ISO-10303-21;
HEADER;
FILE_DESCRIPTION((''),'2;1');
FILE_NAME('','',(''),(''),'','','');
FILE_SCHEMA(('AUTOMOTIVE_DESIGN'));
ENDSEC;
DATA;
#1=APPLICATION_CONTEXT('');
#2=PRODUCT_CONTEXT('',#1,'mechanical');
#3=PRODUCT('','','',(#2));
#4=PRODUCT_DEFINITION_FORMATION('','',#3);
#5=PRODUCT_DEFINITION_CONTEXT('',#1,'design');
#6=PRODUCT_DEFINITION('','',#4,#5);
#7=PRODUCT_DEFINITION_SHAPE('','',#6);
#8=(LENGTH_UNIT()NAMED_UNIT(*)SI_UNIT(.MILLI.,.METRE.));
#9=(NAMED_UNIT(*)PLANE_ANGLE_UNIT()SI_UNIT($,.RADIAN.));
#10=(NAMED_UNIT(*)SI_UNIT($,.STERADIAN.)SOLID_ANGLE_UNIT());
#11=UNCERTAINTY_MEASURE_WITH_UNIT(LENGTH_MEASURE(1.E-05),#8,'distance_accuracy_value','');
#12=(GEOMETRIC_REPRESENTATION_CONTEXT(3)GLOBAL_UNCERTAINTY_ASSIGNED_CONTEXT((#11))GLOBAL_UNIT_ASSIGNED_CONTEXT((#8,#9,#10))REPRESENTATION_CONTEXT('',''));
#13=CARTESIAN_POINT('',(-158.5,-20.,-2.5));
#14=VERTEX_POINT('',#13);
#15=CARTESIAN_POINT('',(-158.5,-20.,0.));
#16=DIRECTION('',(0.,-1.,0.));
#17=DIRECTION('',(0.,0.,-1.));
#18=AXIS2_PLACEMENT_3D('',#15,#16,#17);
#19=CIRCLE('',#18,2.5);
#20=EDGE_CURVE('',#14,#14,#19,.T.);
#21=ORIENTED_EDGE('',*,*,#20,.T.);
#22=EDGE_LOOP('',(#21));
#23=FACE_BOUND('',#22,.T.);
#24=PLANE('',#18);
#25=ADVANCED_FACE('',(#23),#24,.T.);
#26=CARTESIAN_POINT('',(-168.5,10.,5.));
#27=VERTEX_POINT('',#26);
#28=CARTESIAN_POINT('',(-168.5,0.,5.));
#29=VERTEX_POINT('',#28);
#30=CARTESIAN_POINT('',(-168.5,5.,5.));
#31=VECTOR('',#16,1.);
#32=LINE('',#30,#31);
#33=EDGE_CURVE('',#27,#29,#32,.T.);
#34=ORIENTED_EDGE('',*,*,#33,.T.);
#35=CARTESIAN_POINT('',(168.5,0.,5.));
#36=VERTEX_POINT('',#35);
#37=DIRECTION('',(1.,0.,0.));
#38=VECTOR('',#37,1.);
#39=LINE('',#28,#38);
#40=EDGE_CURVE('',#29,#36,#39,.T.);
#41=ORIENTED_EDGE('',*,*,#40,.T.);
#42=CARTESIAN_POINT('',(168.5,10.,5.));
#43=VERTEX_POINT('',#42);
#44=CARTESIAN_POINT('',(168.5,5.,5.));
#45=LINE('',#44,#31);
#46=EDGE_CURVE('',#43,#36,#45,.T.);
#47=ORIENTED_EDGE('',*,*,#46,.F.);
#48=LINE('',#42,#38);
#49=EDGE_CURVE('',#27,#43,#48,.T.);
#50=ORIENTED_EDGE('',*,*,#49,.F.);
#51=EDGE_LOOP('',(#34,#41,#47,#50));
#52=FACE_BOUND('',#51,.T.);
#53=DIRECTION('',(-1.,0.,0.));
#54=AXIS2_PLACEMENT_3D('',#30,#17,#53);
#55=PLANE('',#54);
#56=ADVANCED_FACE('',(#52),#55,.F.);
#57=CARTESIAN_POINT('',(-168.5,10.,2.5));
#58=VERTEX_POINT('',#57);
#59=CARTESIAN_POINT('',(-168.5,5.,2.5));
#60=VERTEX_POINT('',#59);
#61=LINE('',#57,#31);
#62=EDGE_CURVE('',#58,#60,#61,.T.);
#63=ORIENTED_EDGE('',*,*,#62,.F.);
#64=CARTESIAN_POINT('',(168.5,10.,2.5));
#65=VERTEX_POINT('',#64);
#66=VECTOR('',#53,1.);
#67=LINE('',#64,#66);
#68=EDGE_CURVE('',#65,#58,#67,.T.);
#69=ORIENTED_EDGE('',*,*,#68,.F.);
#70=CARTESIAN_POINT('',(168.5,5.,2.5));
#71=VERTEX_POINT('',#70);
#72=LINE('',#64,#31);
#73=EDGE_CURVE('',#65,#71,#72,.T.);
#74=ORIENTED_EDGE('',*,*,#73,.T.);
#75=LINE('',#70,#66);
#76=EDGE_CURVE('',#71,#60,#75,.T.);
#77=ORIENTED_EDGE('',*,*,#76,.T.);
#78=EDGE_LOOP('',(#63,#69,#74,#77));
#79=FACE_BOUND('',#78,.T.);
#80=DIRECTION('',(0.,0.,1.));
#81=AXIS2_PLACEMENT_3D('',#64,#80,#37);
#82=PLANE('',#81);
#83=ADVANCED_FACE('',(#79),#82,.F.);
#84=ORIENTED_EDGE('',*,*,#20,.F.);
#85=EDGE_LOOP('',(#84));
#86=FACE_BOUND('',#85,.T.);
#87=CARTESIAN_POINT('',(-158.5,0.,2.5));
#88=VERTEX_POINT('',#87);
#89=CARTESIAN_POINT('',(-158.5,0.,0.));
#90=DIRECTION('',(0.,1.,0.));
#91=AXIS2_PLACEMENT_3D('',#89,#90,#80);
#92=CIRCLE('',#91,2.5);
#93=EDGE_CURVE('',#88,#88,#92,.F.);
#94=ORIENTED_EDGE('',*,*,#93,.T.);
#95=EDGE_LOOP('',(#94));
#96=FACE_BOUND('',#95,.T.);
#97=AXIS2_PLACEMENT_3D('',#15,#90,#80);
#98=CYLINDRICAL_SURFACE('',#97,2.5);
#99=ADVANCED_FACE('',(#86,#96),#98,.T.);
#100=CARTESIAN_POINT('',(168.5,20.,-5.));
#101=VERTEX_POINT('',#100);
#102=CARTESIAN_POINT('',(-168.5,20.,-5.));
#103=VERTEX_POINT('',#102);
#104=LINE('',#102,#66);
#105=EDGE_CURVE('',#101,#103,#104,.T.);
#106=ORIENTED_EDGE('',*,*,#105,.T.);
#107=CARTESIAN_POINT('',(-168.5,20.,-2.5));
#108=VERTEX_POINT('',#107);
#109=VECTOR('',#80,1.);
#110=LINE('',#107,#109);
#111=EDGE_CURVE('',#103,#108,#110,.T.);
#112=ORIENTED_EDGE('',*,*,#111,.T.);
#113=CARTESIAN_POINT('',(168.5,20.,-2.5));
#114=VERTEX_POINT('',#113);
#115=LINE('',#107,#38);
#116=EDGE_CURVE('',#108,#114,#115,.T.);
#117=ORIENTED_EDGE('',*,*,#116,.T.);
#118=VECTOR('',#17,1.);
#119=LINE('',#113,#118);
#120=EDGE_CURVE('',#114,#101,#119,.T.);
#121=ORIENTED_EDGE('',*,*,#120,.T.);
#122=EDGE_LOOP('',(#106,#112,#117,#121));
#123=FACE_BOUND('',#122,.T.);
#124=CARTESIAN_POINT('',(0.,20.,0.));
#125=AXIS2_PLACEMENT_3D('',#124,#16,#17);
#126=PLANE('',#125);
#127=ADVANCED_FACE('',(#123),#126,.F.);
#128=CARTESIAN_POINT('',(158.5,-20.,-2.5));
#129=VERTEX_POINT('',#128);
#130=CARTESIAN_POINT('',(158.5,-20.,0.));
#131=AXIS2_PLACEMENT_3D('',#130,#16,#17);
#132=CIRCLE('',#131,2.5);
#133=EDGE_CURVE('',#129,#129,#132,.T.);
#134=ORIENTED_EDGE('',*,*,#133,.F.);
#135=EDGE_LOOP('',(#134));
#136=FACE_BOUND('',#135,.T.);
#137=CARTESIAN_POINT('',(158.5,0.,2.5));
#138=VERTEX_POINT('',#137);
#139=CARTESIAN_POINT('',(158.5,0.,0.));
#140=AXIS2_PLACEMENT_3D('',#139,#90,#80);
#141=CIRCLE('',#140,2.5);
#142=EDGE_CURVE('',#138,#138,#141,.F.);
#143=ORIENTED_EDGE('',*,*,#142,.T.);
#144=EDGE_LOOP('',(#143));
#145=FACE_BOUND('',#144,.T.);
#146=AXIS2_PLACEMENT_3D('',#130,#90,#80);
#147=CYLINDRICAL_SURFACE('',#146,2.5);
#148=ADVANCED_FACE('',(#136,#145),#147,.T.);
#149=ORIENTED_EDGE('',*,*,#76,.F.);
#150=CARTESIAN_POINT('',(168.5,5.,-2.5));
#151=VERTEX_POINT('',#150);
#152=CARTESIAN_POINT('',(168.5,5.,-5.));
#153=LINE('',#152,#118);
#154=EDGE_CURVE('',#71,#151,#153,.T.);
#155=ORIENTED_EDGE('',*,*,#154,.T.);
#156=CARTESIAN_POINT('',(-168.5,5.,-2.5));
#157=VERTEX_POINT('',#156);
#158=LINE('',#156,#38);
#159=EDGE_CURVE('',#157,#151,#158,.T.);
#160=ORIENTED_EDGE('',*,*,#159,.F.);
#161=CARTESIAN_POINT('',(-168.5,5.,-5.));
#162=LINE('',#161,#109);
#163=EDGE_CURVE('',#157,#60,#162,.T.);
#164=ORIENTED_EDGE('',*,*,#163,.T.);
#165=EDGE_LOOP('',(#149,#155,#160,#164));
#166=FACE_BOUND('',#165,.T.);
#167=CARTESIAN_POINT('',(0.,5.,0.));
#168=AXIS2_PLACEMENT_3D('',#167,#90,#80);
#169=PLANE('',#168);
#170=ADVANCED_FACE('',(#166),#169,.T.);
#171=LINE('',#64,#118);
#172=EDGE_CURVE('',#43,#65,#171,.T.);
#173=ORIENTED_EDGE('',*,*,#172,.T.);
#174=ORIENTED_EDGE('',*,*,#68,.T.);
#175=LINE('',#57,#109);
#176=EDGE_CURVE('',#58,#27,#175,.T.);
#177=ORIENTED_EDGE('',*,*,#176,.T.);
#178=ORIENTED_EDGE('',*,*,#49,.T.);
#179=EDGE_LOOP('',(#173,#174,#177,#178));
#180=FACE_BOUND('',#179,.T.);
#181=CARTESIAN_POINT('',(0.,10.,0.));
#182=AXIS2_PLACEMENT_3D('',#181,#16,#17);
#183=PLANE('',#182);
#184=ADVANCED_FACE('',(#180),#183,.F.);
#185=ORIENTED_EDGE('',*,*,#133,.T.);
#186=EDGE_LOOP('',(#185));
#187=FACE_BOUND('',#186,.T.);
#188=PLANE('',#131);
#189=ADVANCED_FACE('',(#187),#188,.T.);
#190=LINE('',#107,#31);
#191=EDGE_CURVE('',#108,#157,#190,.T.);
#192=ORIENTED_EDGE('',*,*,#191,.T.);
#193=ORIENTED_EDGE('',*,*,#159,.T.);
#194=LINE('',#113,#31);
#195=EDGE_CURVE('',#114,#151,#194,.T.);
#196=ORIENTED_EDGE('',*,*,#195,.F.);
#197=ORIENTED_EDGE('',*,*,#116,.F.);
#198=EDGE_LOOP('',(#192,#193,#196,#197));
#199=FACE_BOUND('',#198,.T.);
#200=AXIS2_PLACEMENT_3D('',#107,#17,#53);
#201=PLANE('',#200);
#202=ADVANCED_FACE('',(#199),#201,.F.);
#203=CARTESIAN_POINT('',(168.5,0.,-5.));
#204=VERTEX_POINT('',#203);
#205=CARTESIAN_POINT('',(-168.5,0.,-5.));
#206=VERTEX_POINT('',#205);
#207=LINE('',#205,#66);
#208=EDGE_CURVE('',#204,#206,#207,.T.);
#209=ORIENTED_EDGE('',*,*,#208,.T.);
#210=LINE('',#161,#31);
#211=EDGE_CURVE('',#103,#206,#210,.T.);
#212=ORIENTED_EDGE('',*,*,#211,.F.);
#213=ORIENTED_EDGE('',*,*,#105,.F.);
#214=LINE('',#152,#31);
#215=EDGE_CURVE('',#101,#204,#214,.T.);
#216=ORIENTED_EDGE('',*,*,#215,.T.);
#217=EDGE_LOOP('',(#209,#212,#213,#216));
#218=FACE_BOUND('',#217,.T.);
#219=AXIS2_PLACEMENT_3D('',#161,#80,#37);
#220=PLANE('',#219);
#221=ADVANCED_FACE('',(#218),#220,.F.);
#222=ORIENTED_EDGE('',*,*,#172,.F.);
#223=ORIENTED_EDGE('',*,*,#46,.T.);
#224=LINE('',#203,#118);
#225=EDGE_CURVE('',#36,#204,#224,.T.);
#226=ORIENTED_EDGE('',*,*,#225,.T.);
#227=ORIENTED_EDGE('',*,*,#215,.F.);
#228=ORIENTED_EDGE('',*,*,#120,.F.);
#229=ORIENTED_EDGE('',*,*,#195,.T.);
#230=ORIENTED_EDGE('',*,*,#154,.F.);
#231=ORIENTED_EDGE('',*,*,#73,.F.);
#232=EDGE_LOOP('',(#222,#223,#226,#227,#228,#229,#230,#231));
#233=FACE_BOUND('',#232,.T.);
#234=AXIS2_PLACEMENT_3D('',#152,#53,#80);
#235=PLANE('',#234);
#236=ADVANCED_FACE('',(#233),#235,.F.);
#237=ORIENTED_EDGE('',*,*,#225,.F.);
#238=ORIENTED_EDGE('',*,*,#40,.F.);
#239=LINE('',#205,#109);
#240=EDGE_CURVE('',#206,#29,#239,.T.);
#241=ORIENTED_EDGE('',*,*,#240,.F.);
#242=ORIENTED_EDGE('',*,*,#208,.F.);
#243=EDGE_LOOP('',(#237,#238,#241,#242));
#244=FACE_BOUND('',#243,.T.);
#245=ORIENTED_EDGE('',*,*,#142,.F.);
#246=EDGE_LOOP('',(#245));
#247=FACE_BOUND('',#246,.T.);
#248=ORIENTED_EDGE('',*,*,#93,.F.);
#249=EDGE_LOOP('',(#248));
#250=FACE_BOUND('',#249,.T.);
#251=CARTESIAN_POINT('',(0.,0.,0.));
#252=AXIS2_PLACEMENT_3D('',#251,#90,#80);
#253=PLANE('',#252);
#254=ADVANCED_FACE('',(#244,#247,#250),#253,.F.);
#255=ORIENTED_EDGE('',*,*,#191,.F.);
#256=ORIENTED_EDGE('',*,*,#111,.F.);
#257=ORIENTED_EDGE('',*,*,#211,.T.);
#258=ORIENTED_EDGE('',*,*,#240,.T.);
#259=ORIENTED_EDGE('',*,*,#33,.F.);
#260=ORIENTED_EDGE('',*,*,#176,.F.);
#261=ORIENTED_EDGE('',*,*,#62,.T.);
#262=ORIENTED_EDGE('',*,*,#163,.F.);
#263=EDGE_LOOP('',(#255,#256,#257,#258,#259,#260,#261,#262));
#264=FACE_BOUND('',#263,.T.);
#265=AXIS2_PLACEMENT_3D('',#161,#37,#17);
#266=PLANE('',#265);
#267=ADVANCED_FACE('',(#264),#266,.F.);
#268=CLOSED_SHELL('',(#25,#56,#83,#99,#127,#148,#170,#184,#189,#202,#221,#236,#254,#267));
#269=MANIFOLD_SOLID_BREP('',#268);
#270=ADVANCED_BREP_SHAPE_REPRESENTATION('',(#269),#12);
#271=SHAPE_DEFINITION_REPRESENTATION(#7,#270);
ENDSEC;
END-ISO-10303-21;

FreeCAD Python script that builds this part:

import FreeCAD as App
import Part
import Sketcher

V = App.Vector
Q = App.Units.Quantity


def add_polygon(sketch, points):
    """Adds a closed chain of lines whose ends are joined by coincident constraints."""
    first, n = sketch.GeometryCount, len(points)
    for a, b in zip(points, points[1:] + points[:1]):
        sketch.addGeometry(Part.LineSegment(App.Vector(*a, 0), App.Vector(*b, 0)), False)
    for i in range(n):
        sketch.addConstraint(Sketcher.Constraint("Coincident", first + i, 2, first + (i + 1) % n, 1))

doc = App.newDocument("Part")
body = doc.addObject("PartDesign::Body", "Body")

# Sketch on XZ plane
sketch1 = doc.addObject("Sketcher::SketchObject", "Sketch")
body.addObject(sketch1)
sketch1.AttachmentSupport = (doc.XZ_Plane, [""])
sketch1.MapMode = "FlatFace"
add_polygon(sketch1, [(-168.5, -5), (-168.5, 5), (168.5, 5), (168.5, -5)])  # lines 0-3
sketch1.addConstraint([
    Sketcher.Constraint("Vertical", 0),
    Sketcher.Constraint("Horizontal", 1),
    Sketcher.Constraint("Vertical", 2),
    Sketcher.Constraint("Horizontal", 3),
    Sketcher.Constraint("Symmetric", 0, 2, 2, 2, -1, 1),
    Sketcher.Constraint("DistanceX", 1, 1, 1, 2, Q("337 mm")),
    Sketcher.Constraint("DistanceY", 0, 1, 0, 2, Q("10 mm")),
])
pad1 = doc.addObject("PartDesign::Pad", "Pad")
body.addObject(pad1)
pad1.Profile = sketch1
pad1.Length = 5
pad1.Reversed = True

# Sketch on XZ plane
sketch2 = doc.addObject("Sketcher::SketchObject", "Sketch001")
body.addObject(sketch2)
sketch2.AttachmentSupport = (doc.XZ_Plane, [""])
sketch2.MapMode = "FlatFace"
sketch2.AttachmentOffset = App.Placement(V(0, 0, -5), App.Rotation())
add_polygon(sketch2, [(-168.5, 2.5), (-168.5, 5), (168.5, 5), (168.5, 2.5)])  # lines 0-3
sketch2.addConstraint([
    Sketcher.Constraint("Vertical", 0),
    Sketcher.Constraint("Horizontal", 1),
    Sketcher.Constraint("Vertical", 2),
    Sketcher.Constraint("Horizontal", 3),
    Sketcher.Constraint("DistanceX", 1, 1, 1, 2, Q("337 mm")),
    Sketcher.Constraint("DistanceY", 0, 1, 0, 2, Q("2.5 mm")),
    Sketcher.Constraint("DistanceY", -1, 1, 0, 2, Q("5 mm")),
    Sketcher.Constraint("DistanceX", 0, 2, -1, 1, Q("168.5 mm")),
])
pad2 = doc.addObject("PartDesign::Pad", "Pad001")
body.addObject(pad2)
pad2.Profile = sketch2
pad2.Length = 5
pad2.Reversed = True

# Sketch on XZ plane
sketch3 = doc.addObject("Sketcher::SketchObject", "Sketch002")
body.addObject(sketch3)
sketch3.AttachmentSupport = (doc.XZ_Plane, [""])
sketch3.MapMode = "FlatFace"
sketch3.AttachmentOffset = App.Placement(V(0, 0, -5), App.Rotation())
add_polygon(sketch3, [(-168.5, -5), (-168.5, -2.5), (168.5, -2.5), (168.5, -5)])  # lines 0-3
sketch3.addConstraint([
    Sketcher.Constraint("Vertical", 0),
    Sketcher.Constraint("Horizontal", 1),
    Sketcher.Constraint("Vertical", 2),
    Sketcher.Constraint("Horizontal", 3),
    Sketcher.Constraint("DistanceX", 1, 1, 1, 2, Q("337 mm")),
    Sketcher.Constraint("DistanceY", 0, 1, 0, 2, Q("2.5 mm")),
    Sketcher.Constraint("DistanceY", 2, 2, -1, 1, Q("5 mm")),
    Sketcher.Constraint("DistanceX", 0, 2, -1, 1, Q("168.5 mm")),
])
pad3 = doc.addObject("PartDesign::Pad", "Pad002")
body.addObject(pad3)
pad3.Profile = sketch3
pad3.Length = 15
pad3.Reversed = True

# Sketch on XZ plane
sketch4 = doc.addObject("Sketcher::SketchObject", "Sketch003")
body.addObject(sketch4)
sketch4.AttachmentSupport = (doc.XZ_Plane, [""])
sketch4.MapMode = "FlatFace"
sketch4.addGeometry([
    Part.Circle(V(-158.5, 0, 0), V(0, 0, 1), 2.5),
    Part.Circle(V(158.5, 0, 0), V(0, 0, 1), 2.5),
], False)
sketch4.addConstraint([
    Sketcher.Constraint("Equal", 0, 1),
    Sketcher.Constraint("Symmetric", 0, 3, 1, 3, -1, 1),
    Sketcher.Constraint("PointOnObject", 0, 3, -1),
    Sketcher.Constraint("Diameter", 0, Q("5 mm")),
    Sketcher.Constraint("DistanceX", 0, 3, 1, 3, Q("317 mm")),
])
pad4 = doc.addObject("PartDesign::Pad", "Pad003")
body.addObject(pad4)
pad4.Profile = sketch4
pad4.Length = 20

doc.recompute()
